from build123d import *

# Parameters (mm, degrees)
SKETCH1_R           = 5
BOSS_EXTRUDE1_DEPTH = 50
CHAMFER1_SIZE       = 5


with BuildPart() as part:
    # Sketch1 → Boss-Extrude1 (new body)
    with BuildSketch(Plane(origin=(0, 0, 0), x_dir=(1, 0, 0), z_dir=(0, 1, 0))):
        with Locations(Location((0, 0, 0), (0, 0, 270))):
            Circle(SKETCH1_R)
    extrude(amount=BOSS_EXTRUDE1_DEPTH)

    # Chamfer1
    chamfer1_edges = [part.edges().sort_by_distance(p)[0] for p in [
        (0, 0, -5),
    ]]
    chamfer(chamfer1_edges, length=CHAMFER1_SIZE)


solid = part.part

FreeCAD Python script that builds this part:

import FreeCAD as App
import Part
import Sketcher
from FreeCAD import Vector


def edges_at(feature, points):
    """Names of the edges that pass closest to the given points."""
    edges = feature.Shape.Edges
    near = lambda p: min(range(len(edges)), key=lambda i: edges[i].distToShape(Part.Vertex(*p))[0])
    return sorted({f"Edge{near(p) + 1}" for p in points})

doc = App.newDocument("Part")
body = doc.addObject("PartDesign::Body", "Body")

sketch1 = body.newObject("Sketcher::SketchObject", "Sketch")
sketch1.AttachmentSupport = (doc.getObject("XZ_Plane"), [""])
sketch1.MapMode = "FlatFace"
sketch1.addGeometry(Part.Circle(Vector(0, 0, 0), Vector(0, 0, 1), 5), False)
sketch1.addConstraint([
    Sketcher.Constraint("Coincident", 0, 3, -1, 1),
    Sketcher.Constraint("Diameter", 0, 10.0),
])
pad1 = body.newObject("PartDesign::Pad", "Pad")
pad1.Profile = sketch1
pad1.Length = 50
pad1.Reversed = True
doc.recompute()

chamfer = body.newObject("PartDesign::Chamfer", "Chamfer")
chamfer.Base = (pad1, edges_at(pad1, [(0, 0, -5)]))
chamfer.Size = 5

doc.recompute()
